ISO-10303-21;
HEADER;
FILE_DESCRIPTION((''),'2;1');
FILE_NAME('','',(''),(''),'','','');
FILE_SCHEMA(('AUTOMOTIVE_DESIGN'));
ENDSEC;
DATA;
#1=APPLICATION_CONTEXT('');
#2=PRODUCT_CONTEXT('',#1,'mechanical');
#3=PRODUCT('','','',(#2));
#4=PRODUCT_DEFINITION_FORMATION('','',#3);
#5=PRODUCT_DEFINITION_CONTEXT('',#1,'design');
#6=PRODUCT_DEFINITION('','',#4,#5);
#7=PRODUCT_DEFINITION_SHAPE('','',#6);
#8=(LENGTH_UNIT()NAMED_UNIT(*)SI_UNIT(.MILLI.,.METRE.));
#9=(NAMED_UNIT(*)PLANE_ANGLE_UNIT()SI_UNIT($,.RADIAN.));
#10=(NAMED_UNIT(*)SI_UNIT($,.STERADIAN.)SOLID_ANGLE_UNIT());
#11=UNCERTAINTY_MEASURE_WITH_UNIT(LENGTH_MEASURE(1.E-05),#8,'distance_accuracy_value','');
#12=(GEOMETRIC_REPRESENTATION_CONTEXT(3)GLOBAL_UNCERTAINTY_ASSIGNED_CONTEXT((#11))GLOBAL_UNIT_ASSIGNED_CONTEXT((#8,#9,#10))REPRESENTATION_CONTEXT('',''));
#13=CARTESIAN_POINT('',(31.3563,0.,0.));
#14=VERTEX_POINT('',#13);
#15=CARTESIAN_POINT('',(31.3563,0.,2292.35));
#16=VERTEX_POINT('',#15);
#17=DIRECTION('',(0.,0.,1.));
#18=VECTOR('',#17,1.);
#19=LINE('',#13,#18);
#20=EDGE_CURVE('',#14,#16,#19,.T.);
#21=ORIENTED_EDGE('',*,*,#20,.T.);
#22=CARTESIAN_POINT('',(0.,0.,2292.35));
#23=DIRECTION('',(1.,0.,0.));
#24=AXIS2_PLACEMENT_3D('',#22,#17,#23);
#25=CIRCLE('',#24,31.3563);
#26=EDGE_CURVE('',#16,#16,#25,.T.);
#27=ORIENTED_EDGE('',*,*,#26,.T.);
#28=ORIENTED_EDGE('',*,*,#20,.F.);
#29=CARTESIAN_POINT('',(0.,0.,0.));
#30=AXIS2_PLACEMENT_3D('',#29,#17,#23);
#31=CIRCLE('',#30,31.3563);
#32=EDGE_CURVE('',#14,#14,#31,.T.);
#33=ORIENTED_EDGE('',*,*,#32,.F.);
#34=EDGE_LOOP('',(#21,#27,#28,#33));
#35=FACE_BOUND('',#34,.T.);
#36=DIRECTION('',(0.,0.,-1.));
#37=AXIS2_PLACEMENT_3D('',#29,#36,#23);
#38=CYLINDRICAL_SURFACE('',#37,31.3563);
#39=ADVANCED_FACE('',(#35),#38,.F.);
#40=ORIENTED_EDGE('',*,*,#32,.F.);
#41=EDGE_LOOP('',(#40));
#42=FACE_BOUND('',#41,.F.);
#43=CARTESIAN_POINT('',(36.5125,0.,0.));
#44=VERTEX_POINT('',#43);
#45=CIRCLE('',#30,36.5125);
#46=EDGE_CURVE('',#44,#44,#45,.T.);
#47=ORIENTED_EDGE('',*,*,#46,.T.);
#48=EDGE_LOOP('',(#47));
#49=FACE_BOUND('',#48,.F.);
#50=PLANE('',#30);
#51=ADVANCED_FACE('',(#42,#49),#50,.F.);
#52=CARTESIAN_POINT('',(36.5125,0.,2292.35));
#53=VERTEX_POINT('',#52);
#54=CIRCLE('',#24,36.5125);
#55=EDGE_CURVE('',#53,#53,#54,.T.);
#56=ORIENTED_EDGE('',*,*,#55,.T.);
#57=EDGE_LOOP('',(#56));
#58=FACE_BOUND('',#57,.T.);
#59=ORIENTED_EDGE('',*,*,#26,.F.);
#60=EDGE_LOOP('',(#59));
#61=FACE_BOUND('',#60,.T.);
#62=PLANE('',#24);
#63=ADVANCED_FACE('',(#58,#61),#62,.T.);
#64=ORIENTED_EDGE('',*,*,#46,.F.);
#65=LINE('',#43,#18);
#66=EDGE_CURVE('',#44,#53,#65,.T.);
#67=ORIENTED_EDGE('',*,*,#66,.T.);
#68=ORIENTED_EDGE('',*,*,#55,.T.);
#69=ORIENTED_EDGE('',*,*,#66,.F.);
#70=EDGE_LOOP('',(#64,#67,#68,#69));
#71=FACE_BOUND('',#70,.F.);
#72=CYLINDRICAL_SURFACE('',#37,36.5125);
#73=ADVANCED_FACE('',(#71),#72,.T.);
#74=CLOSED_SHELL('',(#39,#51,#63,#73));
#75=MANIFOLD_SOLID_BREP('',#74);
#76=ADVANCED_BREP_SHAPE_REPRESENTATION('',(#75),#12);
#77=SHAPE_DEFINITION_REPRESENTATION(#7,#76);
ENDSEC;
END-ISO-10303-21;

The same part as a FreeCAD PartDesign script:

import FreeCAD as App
import Part
import Sketcher
from FreeCAD import Vector
Q = App.Units.Quantity

doc = App.newDocument("Part")
body = doc.addObject("PartDesign::Body", "Body")

sketch1 = body.newObject("Sketcher::SketchObject", "Sketch")
sketch1.AttachmentSupport = (doc.getObject("XY_Plane"), [""])
sketch1.MapMode = "FlatFace"
sketch1.addGeometry([
    Part.Circle(Vector(0, 0, 0), Vector(0, 0, 1), 37),
    Part.Circle(Vector(0, 0, 0), Vector(0, 0, 1), 31),
], False)
sketch1.addConstraint([
    Sketcher.Constraint("Coincident", 0, 3, -1, 1),
    Sketcher.Constraint("Coincident", 1, 3, -1, 1),
    Sketcher.Constraint("Diameter", 0, Q("2.875 in")),
    Sketcher.Constraint("Diameter", 1, Q("2.469 in")),
])
pad1 = body.newObject("PartDesign::Pad", "Pad")
pad1.Profile = sketch1
pad1.Length = Q("90.25 in")

doc.recompute()
